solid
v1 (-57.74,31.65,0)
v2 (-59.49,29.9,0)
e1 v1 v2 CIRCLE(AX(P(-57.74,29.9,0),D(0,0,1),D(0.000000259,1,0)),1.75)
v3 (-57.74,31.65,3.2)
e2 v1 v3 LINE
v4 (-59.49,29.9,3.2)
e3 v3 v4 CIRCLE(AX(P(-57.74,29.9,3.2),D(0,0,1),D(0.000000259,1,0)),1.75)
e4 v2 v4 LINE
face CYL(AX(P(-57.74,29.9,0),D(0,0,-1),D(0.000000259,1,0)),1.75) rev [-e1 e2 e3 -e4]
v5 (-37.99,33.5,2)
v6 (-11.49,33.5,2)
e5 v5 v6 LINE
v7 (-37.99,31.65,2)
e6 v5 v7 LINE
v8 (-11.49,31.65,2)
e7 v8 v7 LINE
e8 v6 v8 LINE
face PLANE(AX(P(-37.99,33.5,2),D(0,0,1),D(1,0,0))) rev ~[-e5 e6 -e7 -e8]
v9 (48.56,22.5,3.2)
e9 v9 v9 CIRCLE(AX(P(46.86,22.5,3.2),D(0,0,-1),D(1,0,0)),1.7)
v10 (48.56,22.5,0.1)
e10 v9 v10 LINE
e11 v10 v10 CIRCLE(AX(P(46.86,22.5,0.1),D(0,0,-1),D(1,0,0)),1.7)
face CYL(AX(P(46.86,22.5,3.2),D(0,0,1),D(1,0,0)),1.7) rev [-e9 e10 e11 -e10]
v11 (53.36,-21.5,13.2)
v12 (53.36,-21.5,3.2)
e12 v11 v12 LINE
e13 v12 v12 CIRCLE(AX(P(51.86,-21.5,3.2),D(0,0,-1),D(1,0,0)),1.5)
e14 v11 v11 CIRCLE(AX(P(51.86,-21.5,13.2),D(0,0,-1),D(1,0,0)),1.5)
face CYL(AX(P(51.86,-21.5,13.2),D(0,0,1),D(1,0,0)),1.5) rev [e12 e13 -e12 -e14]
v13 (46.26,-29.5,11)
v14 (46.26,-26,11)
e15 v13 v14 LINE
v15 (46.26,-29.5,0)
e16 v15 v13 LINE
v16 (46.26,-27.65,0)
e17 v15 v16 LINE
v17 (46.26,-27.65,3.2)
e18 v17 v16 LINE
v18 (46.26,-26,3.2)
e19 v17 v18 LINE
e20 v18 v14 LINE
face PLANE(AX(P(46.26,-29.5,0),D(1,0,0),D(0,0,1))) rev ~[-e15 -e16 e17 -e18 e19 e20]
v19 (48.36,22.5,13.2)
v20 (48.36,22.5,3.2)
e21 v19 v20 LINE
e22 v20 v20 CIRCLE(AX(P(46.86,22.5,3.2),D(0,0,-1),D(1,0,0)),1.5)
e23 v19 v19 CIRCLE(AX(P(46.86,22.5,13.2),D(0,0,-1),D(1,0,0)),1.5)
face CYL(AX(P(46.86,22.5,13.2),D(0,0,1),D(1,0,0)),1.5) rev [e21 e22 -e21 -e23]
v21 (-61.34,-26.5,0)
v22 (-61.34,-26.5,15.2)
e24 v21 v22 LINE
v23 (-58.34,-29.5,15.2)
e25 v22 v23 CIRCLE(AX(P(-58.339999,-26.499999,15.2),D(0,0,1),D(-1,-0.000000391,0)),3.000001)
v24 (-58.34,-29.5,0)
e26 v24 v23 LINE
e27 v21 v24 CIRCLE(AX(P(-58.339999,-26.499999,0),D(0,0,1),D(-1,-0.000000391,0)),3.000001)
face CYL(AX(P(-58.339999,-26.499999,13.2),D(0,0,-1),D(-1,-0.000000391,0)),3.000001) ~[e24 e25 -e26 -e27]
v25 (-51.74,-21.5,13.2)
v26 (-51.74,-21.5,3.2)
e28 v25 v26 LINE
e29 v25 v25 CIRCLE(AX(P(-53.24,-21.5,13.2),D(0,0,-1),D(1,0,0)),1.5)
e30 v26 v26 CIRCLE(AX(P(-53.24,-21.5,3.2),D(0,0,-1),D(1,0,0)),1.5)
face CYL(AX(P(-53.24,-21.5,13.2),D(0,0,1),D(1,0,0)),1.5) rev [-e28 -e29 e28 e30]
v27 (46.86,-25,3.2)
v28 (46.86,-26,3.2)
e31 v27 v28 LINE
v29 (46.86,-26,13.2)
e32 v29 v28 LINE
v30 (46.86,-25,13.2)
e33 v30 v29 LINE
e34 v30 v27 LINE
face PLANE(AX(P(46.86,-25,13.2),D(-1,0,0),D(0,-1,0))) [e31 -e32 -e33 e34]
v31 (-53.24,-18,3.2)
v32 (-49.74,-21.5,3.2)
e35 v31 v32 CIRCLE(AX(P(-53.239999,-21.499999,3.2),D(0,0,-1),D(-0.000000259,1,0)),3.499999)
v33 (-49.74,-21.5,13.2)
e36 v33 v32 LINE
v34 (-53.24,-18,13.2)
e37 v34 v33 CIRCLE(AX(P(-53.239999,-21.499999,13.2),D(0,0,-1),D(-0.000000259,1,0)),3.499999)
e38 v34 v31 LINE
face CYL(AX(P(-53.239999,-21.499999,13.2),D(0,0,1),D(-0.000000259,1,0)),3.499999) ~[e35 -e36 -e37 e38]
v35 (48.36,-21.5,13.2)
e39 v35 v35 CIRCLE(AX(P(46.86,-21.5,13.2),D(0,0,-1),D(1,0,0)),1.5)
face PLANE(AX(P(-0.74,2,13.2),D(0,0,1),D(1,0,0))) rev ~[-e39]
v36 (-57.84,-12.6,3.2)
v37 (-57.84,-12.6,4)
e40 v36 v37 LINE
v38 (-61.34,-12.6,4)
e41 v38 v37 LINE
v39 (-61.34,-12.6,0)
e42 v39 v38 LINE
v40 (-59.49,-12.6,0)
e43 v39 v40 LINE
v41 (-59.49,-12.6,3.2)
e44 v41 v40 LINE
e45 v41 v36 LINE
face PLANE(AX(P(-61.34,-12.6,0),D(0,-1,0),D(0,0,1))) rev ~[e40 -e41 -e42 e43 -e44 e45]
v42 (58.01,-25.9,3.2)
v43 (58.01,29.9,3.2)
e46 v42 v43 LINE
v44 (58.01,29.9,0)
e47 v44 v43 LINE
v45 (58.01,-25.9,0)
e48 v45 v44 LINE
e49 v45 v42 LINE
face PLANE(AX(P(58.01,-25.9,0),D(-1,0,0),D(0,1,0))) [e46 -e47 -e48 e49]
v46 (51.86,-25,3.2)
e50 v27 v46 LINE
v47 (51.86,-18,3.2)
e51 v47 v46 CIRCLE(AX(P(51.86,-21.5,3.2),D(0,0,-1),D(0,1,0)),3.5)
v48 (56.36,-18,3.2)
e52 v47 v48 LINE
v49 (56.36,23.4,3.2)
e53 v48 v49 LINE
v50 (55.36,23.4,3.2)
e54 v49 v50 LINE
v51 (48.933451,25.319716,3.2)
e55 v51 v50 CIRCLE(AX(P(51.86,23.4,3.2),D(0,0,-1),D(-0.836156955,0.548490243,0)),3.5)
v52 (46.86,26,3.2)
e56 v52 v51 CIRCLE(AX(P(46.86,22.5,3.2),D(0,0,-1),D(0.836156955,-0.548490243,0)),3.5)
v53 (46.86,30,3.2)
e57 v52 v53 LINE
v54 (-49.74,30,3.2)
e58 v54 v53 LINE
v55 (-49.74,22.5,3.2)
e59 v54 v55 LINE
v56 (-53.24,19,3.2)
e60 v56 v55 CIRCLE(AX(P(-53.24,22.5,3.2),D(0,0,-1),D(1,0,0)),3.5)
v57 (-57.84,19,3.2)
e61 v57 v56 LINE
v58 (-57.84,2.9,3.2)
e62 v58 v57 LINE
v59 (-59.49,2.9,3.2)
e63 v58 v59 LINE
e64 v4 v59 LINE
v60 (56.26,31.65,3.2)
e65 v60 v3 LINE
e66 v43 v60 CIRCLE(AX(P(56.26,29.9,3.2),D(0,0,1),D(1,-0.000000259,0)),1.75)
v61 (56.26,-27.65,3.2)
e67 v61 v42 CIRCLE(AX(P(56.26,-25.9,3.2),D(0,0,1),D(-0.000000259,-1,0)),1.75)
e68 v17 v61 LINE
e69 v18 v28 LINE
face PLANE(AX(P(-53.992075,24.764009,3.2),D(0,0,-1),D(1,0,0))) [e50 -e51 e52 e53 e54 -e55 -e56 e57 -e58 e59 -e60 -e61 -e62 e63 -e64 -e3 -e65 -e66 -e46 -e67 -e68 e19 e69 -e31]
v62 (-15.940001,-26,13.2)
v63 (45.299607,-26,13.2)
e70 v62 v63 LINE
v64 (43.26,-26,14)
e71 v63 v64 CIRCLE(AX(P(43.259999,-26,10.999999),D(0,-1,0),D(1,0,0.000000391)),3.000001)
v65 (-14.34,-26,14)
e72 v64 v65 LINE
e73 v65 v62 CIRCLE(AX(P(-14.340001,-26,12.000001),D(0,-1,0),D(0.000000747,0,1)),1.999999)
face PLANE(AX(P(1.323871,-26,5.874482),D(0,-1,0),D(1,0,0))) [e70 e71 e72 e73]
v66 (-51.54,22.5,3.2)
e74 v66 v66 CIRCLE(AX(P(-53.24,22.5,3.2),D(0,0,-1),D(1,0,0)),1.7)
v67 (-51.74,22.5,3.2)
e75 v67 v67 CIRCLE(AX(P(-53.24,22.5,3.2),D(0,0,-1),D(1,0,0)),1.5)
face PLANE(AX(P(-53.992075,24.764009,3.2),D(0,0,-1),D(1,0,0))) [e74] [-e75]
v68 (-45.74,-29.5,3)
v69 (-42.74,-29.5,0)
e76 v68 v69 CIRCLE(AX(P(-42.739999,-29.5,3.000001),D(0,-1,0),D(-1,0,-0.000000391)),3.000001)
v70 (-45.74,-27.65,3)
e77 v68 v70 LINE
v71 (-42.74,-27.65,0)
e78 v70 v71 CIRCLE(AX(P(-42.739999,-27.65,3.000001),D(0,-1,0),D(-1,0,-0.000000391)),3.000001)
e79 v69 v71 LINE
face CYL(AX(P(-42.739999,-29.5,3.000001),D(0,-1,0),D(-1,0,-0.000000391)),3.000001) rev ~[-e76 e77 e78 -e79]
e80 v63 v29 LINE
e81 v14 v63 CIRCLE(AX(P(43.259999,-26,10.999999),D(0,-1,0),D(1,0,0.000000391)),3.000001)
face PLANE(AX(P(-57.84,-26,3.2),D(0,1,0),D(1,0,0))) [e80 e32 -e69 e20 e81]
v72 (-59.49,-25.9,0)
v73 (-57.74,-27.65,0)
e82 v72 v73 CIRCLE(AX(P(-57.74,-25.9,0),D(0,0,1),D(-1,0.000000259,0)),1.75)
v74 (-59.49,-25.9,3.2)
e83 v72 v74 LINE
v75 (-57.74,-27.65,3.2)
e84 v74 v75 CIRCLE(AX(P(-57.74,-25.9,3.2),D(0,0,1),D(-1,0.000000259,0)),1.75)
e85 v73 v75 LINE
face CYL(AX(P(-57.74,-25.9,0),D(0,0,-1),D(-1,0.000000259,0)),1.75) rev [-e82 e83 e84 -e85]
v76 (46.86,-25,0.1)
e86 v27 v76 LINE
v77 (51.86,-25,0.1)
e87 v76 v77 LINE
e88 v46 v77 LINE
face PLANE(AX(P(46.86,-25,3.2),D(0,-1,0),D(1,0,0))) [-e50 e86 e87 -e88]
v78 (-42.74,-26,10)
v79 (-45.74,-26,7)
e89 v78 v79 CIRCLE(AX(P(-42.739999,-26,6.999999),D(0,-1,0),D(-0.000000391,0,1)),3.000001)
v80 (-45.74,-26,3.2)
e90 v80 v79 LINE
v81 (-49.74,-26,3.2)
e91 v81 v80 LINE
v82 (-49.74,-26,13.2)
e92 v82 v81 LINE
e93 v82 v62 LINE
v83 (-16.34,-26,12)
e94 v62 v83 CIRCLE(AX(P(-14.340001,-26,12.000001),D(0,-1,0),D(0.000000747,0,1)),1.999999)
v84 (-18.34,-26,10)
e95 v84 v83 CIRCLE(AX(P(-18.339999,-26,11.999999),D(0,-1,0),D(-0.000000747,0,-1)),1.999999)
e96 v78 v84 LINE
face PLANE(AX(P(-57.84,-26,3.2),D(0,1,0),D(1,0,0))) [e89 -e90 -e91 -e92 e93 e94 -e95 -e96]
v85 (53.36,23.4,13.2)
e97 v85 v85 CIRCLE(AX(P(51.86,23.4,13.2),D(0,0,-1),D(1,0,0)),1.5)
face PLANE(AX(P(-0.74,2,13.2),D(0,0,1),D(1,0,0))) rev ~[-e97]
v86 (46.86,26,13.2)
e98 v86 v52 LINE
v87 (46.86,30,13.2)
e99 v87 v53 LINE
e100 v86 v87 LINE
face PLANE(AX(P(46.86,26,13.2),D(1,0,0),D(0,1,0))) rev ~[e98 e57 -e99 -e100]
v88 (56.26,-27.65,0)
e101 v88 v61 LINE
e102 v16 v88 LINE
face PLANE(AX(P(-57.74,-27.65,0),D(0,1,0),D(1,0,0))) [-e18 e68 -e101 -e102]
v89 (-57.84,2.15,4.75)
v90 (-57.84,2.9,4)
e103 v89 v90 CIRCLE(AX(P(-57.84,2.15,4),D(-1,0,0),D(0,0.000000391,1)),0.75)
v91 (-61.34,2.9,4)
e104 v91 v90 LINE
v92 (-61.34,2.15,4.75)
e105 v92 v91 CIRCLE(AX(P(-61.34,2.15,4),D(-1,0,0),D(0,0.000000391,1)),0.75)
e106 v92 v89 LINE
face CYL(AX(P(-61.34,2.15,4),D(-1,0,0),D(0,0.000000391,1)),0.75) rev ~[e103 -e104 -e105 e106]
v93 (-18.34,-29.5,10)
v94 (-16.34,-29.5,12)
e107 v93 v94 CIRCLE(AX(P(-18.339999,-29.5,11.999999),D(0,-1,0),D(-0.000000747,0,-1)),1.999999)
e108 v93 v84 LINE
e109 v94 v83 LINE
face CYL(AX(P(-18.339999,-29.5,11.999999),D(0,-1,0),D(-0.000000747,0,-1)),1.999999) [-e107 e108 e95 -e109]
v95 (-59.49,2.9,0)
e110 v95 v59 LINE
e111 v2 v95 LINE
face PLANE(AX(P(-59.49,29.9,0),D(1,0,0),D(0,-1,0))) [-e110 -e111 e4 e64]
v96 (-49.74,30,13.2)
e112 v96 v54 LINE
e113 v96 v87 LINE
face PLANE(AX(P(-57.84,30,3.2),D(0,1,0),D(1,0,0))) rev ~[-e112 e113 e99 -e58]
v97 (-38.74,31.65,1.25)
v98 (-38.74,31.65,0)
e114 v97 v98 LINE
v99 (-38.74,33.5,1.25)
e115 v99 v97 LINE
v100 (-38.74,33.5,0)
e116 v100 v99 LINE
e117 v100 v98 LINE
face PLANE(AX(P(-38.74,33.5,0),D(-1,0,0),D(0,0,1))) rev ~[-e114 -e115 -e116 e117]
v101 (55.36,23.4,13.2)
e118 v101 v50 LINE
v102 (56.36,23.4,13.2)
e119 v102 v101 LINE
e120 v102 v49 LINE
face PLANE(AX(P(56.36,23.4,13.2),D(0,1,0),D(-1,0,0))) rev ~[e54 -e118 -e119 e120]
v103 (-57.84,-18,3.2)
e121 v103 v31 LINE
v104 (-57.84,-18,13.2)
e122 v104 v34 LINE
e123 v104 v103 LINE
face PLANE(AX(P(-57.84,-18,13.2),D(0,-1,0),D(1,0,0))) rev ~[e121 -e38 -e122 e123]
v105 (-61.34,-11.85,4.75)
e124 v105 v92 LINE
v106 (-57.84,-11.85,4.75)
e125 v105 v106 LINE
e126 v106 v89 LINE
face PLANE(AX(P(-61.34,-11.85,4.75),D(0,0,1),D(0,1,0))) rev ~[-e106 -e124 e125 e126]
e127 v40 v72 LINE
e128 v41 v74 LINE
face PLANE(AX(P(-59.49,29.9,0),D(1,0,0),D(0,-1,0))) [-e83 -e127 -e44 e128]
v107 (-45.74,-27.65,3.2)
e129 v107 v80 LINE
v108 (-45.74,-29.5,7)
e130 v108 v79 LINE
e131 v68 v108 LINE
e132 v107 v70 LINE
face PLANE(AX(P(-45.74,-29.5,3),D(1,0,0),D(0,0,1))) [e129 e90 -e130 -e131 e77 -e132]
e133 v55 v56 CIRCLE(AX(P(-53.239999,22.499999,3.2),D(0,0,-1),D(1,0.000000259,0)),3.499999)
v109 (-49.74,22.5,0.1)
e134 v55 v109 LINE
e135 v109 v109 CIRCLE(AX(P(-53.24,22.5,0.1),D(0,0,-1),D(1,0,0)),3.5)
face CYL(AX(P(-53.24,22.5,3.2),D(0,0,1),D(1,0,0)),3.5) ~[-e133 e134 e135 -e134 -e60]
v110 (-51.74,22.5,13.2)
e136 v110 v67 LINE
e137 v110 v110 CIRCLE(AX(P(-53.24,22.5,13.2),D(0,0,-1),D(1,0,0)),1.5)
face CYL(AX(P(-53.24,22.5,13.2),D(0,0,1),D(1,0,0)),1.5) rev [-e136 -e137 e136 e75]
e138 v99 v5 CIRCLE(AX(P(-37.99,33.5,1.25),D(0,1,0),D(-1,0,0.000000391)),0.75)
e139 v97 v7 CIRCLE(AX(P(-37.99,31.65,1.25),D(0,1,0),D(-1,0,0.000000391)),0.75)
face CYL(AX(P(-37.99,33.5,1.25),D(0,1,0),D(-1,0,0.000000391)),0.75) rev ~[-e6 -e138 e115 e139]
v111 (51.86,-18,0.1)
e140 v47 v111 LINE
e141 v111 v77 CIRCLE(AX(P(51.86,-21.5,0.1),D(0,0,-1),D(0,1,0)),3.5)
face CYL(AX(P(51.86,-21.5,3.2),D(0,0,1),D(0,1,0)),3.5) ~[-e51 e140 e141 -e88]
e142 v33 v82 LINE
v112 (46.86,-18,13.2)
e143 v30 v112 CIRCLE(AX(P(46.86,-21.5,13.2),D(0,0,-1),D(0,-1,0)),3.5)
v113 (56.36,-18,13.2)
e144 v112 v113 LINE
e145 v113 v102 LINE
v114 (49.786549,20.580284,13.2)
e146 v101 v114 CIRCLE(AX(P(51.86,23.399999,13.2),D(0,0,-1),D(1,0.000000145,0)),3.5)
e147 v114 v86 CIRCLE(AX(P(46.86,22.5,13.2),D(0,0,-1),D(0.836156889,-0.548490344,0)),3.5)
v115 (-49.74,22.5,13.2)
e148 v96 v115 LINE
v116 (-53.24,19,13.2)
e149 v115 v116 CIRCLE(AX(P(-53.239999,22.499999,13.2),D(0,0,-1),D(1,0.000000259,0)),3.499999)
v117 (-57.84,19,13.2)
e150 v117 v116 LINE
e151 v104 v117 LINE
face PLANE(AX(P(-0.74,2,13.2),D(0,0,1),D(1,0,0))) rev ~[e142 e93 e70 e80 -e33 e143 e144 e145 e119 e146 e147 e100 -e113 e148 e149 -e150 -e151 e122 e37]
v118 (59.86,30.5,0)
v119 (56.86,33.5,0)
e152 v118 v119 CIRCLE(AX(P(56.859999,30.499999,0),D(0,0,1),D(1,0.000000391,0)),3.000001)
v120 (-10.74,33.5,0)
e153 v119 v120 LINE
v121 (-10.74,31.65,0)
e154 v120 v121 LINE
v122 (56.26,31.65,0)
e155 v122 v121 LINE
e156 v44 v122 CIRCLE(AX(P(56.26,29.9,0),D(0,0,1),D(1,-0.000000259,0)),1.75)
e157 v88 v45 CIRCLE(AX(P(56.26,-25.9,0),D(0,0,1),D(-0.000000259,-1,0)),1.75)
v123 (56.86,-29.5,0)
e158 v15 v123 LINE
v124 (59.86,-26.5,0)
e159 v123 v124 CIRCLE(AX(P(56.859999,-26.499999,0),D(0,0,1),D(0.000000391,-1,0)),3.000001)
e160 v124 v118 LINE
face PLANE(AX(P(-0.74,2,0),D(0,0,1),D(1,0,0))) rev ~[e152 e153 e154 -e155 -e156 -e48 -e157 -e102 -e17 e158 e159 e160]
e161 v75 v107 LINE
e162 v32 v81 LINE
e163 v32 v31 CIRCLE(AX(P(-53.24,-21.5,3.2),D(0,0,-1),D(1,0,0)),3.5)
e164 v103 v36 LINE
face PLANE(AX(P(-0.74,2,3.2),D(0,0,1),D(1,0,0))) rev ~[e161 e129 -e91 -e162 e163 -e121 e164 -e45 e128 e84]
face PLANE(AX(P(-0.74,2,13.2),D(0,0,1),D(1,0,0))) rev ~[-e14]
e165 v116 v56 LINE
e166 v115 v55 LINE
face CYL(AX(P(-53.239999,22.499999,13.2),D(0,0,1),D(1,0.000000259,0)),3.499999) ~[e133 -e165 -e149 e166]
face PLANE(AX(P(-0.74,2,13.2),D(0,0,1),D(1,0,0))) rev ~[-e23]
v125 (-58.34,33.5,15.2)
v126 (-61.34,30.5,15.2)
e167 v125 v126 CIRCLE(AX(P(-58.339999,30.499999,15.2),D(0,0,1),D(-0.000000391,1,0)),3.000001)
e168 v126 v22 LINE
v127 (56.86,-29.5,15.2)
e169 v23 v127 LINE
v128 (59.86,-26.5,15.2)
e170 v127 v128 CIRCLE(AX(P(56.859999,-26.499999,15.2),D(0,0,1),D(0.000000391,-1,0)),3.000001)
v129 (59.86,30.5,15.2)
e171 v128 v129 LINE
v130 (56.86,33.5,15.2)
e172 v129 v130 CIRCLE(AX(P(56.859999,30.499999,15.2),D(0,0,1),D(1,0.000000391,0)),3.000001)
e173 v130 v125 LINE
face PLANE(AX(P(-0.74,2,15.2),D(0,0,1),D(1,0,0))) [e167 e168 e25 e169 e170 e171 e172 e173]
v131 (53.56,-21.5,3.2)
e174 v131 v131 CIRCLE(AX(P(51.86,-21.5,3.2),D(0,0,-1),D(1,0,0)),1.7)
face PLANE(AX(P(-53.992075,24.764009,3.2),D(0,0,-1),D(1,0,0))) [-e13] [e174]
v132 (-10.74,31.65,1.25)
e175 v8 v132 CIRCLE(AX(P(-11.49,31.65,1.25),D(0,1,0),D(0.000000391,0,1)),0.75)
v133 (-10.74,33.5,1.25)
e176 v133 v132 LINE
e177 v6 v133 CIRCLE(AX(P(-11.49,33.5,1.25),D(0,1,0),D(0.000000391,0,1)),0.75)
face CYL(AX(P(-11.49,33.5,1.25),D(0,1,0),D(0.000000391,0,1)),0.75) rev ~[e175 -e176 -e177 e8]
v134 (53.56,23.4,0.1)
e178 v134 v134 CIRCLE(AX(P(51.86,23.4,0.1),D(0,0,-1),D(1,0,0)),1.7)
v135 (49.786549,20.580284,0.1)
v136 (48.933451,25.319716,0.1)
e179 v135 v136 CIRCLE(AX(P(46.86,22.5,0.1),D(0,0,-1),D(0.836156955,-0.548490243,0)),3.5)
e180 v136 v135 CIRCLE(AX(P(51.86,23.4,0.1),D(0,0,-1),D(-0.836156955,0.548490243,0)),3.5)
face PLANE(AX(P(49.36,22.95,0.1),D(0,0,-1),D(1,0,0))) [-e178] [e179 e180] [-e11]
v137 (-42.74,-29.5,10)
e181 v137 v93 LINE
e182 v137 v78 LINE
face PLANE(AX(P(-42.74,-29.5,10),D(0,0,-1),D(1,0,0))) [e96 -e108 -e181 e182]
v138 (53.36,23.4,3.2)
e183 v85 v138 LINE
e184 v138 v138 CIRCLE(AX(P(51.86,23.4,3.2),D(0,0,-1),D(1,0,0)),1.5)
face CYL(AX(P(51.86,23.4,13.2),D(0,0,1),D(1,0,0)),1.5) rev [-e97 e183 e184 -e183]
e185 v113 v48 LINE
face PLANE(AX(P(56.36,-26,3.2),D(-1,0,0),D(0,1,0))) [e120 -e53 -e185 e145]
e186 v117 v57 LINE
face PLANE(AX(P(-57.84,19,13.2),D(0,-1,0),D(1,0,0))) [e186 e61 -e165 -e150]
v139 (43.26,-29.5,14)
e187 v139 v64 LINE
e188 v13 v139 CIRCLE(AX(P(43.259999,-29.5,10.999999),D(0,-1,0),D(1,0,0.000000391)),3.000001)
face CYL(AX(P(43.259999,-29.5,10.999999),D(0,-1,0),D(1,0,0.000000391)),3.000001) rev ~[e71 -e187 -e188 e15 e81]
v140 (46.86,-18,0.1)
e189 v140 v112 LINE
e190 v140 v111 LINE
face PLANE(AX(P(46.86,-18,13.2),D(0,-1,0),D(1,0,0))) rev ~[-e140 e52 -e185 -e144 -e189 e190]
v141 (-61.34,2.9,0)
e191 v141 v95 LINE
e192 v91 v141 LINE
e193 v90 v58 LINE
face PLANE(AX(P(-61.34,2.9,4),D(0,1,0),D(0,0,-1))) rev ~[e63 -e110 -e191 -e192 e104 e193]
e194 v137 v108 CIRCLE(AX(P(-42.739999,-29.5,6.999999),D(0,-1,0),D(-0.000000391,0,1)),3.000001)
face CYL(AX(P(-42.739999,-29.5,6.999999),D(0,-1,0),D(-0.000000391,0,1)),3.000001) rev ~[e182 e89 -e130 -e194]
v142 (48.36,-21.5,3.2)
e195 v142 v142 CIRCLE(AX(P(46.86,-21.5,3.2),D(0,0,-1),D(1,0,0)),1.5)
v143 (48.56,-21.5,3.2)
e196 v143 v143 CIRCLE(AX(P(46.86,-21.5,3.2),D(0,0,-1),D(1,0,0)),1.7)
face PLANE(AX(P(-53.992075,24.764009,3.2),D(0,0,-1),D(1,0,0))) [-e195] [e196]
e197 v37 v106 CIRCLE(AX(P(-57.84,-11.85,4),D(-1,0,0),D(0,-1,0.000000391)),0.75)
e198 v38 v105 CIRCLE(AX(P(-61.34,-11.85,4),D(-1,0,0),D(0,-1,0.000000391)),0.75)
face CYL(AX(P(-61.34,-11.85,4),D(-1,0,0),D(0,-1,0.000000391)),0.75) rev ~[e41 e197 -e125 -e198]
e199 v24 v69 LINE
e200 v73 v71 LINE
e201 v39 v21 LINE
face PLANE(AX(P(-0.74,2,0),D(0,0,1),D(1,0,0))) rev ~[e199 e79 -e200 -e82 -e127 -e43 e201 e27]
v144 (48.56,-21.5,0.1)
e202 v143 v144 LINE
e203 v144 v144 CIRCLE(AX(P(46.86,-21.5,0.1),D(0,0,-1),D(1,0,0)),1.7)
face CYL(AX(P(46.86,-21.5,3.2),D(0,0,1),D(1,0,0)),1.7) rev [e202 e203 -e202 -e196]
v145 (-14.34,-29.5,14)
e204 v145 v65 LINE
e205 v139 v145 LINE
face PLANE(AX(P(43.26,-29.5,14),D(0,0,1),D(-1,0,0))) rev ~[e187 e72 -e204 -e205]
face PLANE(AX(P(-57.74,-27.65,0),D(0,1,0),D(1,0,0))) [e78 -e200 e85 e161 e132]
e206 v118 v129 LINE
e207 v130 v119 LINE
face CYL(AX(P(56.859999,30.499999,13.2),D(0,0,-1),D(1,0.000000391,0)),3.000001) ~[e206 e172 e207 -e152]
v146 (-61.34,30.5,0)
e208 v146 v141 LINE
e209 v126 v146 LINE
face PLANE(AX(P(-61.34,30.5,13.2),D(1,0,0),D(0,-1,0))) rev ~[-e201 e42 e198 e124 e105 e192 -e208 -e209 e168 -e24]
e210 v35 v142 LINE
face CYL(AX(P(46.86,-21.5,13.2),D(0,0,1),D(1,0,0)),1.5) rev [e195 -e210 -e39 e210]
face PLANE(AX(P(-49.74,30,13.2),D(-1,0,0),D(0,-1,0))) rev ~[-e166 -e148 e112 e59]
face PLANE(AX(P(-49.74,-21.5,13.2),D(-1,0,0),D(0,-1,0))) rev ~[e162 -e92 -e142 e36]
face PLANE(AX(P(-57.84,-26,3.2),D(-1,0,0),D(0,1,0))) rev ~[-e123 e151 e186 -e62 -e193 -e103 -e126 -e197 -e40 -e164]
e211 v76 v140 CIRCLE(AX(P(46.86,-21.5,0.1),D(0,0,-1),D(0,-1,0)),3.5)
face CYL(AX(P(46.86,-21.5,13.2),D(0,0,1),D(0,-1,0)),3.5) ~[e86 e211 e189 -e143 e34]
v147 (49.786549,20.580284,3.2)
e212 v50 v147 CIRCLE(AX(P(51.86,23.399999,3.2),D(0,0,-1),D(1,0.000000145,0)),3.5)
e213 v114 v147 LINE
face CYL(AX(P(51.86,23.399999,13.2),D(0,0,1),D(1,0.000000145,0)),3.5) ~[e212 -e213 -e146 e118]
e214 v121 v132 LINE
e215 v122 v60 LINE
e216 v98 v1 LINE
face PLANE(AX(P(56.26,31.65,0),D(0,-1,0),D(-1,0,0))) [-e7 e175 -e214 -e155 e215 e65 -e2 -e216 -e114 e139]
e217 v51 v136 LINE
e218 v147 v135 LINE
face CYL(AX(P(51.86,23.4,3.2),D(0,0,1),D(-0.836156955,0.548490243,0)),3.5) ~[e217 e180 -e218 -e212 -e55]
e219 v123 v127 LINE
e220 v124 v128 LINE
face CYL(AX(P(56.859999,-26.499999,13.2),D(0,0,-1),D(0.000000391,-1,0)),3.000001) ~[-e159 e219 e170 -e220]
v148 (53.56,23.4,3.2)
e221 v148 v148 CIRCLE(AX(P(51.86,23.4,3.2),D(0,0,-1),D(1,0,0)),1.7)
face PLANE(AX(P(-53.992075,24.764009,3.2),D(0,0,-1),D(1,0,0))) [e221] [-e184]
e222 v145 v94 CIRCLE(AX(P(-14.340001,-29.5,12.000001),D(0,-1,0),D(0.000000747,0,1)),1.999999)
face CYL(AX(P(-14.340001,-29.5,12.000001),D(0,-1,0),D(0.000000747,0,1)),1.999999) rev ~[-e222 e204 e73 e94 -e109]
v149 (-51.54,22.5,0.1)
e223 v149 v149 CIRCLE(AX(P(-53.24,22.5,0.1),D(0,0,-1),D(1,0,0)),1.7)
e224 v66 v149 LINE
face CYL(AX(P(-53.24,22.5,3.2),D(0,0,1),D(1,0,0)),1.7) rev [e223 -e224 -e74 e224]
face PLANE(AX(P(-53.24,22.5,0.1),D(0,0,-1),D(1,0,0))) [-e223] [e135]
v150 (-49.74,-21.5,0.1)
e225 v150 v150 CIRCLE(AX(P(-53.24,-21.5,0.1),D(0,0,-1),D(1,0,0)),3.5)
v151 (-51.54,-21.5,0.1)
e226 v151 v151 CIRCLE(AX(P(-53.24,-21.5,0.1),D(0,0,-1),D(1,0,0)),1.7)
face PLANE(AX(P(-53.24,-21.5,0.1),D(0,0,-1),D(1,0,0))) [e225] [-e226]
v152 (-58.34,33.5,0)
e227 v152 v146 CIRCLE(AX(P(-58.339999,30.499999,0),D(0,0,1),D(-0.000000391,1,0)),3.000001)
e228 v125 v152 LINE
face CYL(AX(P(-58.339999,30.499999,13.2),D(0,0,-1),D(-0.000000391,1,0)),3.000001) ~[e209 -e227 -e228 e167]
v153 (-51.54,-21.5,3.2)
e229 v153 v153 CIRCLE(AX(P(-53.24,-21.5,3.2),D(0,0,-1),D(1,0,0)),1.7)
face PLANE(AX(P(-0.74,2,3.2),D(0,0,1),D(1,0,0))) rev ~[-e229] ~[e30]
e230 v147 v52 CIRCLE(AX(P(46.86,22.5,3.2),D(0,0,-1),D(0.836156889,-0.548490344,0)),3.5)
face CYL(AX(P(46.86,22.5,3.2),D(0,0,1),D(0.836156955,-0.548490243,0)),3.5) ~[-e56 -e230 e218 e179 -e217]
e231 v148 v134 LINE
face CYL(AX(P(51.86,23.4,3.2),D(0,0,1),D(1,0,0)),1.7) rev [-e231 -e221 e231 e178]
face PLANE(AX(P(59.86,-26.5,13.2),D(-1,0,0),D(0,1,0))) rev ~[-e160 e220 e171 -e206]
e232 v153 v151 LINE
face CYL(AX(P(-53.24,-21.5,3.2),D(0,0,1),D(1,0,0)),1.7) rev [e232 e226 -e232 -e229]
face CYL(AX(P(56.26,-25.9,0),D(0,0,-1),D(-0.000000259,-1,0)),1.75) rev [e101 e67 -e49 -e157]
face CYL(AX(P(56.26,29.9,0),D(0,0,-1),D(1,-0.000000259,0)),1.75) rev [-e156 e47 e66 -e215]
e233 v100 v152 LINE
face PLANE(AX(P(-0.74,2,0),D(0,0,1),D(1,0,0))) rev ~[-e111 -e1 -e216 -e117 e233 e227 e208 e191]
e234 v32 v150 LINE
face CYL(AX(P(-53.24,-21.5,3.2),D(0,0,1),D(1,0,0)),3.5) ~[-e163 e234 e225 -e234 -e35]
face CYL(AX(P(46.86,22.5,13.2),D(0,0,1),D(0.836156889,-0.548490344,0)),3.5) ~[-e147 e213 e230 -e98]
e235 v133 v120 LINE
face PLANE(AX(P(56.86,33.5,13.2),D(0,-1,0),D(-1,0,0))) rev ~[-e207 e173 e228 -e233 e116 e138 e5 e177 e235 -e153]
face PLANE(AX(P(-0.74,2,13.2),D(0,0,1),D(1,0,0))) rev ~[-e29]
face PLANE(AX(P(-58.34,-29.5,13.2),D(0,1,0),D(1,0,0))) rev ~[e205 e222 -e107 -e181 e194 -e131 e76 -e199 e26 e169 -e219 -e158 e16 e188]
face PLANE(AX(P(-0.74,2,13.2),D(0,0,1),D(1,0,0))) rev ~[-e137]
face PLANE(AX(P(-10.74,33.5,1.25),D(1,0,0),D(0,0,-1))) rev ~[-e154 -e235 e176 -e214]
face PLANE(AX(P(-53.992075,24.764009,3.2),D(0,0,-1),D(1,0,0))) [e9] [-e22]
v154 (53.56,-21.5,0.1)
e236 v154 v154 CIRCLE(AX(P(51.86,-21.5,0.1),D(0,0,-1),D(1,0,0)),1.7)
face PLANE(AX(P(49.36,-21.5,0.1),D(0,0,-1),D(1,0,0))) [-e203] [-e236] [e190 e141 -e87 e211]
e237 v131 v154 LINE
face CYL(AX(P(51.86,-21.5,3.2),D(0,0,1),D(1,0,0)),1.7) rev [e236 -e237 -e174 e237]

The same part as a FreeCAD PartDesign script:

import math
import FreeCAD as App
import Part
import Sketcher

doc = App.newDocument("Part")
body = doc.addObject("PartDesign::Body", "Body")

# Sketch on XY plane
sketch1 = body.newObject("Sketcher::SketchObject", "Sketch")
sketch1.AttachmentSupport = (doc.getObject("XY_Plane"), [""])
sketch1.MapMode = "FlatFace"
sketch1.addGeometry([
    Part.LineSegment(App.Vector(56.9, 33.5, 0), App.Vector(-58.3, 33.5, 0)),  # 0
    Part.ArcOfCircle(Part.Circle(App.Vector(-58.3, 30.5, 0), App.Vector(0, 0, 1), 3), math.radians(90), math.radians(180)),  # 1
    Part.LineSegment(App.Vector(-61.3, 30.5, 0), App.Vector(-61.3, -26.5, 0)),  # 2
    Part.ArcOfCircle(Part.Circle(App.Vector(-58.3, -26.5, 0), App.Vector(0, 0, 1), 3), math.radians(-180), math.radians(-90)),  # 3
    Part.LineSegment(App.Vector(-58.3, -29.5, 0), App.Vector(56.9, -29.5, 0)),  # 4
    Part.ArcOfCircle(Part.Circle(App.Vector(56.9, -26.5, 0), App.Vector(0, 0, 1), 3), math.radians(-90), math.radians(0)),  # 5
    Part.LineSegment(App.Vector(59.9, -26.5, 0), App.Vector(59.9, 30.5, 0)),  # 6
    Part.ArcOfCircle(Part.Circle(App.Vector(56.9, 30.5, 0), App.Vector(0, 0, 1), 3), math.radians(0), math.radians(90)),  # 7
    Part.LineSegment(App.Vector(-57.7, 31.6, 0), App.Vector(56.3, 31.6, 0)),  # 8
    Part.ArcOfCircle(Part.Circle(App.Vector(56.3, 29.9, 0), App.Vector(0, 0, 1), 1.7), math.radians(0), math.radians(90)),  # 9
    Part.LineSegment(App.Vector(58, 29.9, 0), App.Vector(58, -25.9, 0)),  # 10
    Part.ArcOfCircle(Part.Circle(App.Vector(56.3, -25.9, 0), App.Vector(0, 0, 1), 1.7), math.radians(-90), math.radians(0)),  # 11
    Part.LineSegment(App.Vector(56.3, -27.6, 0), App.Vector(-57.7, -27.6, 0)),  # 12
    Part.ArcOfCircle(Part.Circle(App.Vector(-57.7, -25.9, 0), App.Vector(0, 0, 1), 1.7), math.radians(180), math.radians(270)),  # 13
    Part.LineSegment(App.Vector(-59.5, -25.9, 0), App.Vector(-59.5, 29.9, 0)),  # 14
    Part.ArcOfCircle(Part.Circle(App.Vector(-57.7, 29.9, 0), App.Vector(0, 0, 1), 1.7), math.radians(90), math.radians(180)),  # 15
], False)
sketch1.addConstraint([
    Sketcher.Constraint("Tangent", 0, 2, 1, 1),
    Sketcher.Constraint("Tangent", 1, 2, 2, 1),
    Sketcher.Constraint("Tangent", 2, 2, 3, 1),
    Sketcher.Constraint("Tangent", 3, 2, 4, 1),
    Sketcher.Constraint("Tangent", 4, 2, 5, 1),
    Sketcher.Constraint("Tangent", 5, 2, 6, 1),
    Sketcher.Constraint("Tangent", 6, 2, 7, 1),
    Sketcher.Constraint("Tangent", 7, 2, 0, 1),
    Sketcher.Constraint("Tangent", 8, 2, 9, 2),
    Sketcher.Constraint("Tangent", 9, 1, 10, 1),
    Sketcher.Constraint("Tangent", 10, 2, 11, 2),
    Sketcher.Constraint("Tangent", 11, 1, 12, 1),
    Sketcher.Constraint("Tangent", 12, 2, 13, 2),
    Sketcher.Constraint("Tangent", 13, 1, 14, 1),
    Sketcher.Constraint("Tangent", 14, 2, 15, 2),
    Sketcher.Constraint("Tangent", 15, 1, 8, 1),
    Sketcher.Constraint("Horizontal", 0),
    Sketcher.Constraint("Vertical", 2),
    Sketcher.Constraint("Horizontal", 4),
    Sketcher.Constraint("Vertical", 6),
    Sketcher.Constraint("Horizontal", 8),
    Sketcher.Constraint("Vertical", 10),
    Sketcher.Constraint("Horizontal", 12),
    Sketcher.Constraint("Vertical", 14),
    Sketcher.Constraint("Equal", 1, 3),
    Sketcher.Constraint("Equal", 3, 5),
    Sketcher.Constraint("Equal", 5, 7),
    Sketcher.Constraint("Equal", 9, 11),
    Sketcher.Constraint("Equal", 11, 13),
    Sketcher.Constraint("Equal", 13, 15),
    Sketcher.Constraint("Radius", 1, 3.000001),
    Sketcher.Constraint("DistanceX", 8, 1, 8, 2, 114.0),
    Sketcher.Constraint("DistanceY", 2, 2, 2, 1, 57.0),
    Sketcher.Constraint("Radius", 9, 1.75),
    Sketcher.Constraint("DistanceX", 0, 2, 0, 1, 115.2),
    Sketcher.Constraint("DistanceY", 10, 2, 10, 1, 55.8),
    Sketcher.Constraint("DistanceY", -1, 1, 1, 3, 30.499999),
    Sketcher.Constraint("DistanceY", -1, 1, 9, 3, 29.9),
    Sketcher.Constraint("DistanceX", 9, 3, 7, 3, 0.599998),
    Sketcher.Constraint("DistanceX", 1, 3, -1, 1, 58.339999),
])
pad1 = body.newObject("PartDesign::Pad", "Pad")
pad1.Profile = sketch1
pad1.Length = 3.2

# Sketch on XY plane
sketch2 = body.newObject("Sketcher::SketchObject", "Sketch001")
sketch2.AttachmentSupport = (doc.getObject("XY_Plane"), [""])
sketch2.MapMode = "FlatFace"
sketch2.AttachmentOffset = App.Placement(App.Vector(0, 0, 3.2), App.Rotation())
sketch2.addGeometry([
    Part.LineSegment(App.Vector(-61.3, 30.5, 0), App.Vector(-61.3, -26.5, 0)),  # 0
    Part.ArcOfCircle(Part.Circle(App.Vector(-58.3, -26.5, 0), App.Vector(0, 0, 1), 3), math.radians(-180), math.radians(-90)),  # 1
    Part.LineSegment(App.Vector(-58.3, -29.5, 0), App.Vector(56.9, -29.5, 0)),  # 2
    Part.ArcOfCircle(Part.Circle(App.Vector(56.9, -26.5, 0), App.Vector(0, 0, 1), 3), math.radians(-90), math.radians(0)),  # 3
    Part.LineSegment(App.Vector(59.9, -26.5, 0), App.Vector(59.9, 30.5, 0)),  # 4
    Part.ArcOfCircle(Part.Circle(App.Vector(56.9, 30.5, 0), App.Vector(0, 0, 1), 3), math.radians(0), math.radians(90)),  # 5
    Part.LineSegment(App.Vector(56.9, 33.5, 0), App.Vector(-58.3, 33.5, 0)),  # 6
    Part.ArcOfCircle(Part.Circle(App.Vector(-58.3, 30.5, 0), App.Vector(0, 0, 1), 3), math.radians(90), math.radians(180)),  # 7
    Part.LineSegment(App.Vector(56.4, -26, 0), App.Vector(-57.8, -26, 0)),  # 8
    Part.LineSegment(App.Vector(-57.8, -26, 0), App.Vector(-57.8, 30, 0)),  # 9
    Part.LineSegment(App.Vector(-57.8, 30, 0), App.Vector(56.4, 30, 0)),  # 10
    Part.LineSegment(App.Vector(56.4, 30, 0), App.Vector(56.4, -26, 0)),  # 11
], False)
sketch2.addConstraint([
    Sketcher.Constraint("Tangent", 0, 2, 1, 1),
    Sketcher.Constraint("Tangent", 1, 2, 2, 1),
    Sketcher.Constraint("Tangent", 2, 2, 3, 1),
    Sketcher.Constraint("Tangent", 3, 2, 4, 1),
    Sketcher.Constraint("Tangent", 4, 2, 5, 1),
    Sketcher.Constraint("Tangent", 5, 2, 6, 1),
    Sketcher.Constraint("Tangent", 6, 2, 7, 1),
    Sketcher.Constraint("Tangent", 7, 2, 0, 1),
    Sketcher.Constraint("Coincident", 8, 2, 9, 1),
    Sketcher.Constraint("Coincident", 9, 2, 10, 1),
    Sketcher.Constraint("Coincident", 10, 2, 11, 1),
    Sketcher.Constraint("Coincident", 11, 2, 8, 1),
    Sketcher.Constraint("Vertical", 0),
    Sketcher.Constraint("Horizontal", 2),
    Sketcher.Constraint("Vertical", 4),
    Sketcher.Constraint("Horizontal", 6),
    Sketcher.Constraint("Horizontal", 8),
    Sketcher.Constraint("Vertical", 9),
    Sketcher.Constraint("Horizontal", 10),
    Sketcher.Constraint("Vertical", 11),
    Sketcher.Constraint("Equal", 1, 3),
    Sketcher.Constraint("Equal", 3, 5),
    Sketcher.Constraint("Equal", 5, 7),
    Sketcher.Constraint("Radius", 1, 3.000001),
    Sketcher.Constraint("DistanceY", 0, 2, 0, 1, 57.0),
    Sketcher.Constraint("DistanceY", 9, 1, 9, 2, 56.0),
    Sketcher.Constraint("DistanceX", 2, 1, 2, 2, 115.2),
    Sketcher.Constraint("DistanceX", 8, 2, 8, 1, 114.2),
    Sketcher.Constraint("DistanceY", 8, 2, -1, 1, 26.0),
    Sketcher.Constraint("DistanceY", 1, 3, -1, 1, 26.499999),
    Sketcher.Constraint("DistanceX", 1, 3, 8, 2, 0.499999),
    Sketcher.Constraint("DistanceX", 1, 3, -1, 1, 58.339999),
])
pad2 = body.newObject("PartDesign::Pad", "Pad001")
pad2.Profile = sketch2
pad2.Length = 10

# Sketch on XY plane
sketch3 = body.newObject("Sketcher::SketchObject", "Sketch002")
sketch3.AttachmentSupport = (doc.getObject("XY_Plane"), [""])
sketch3.MapMode = "FlatFace"
sketch3.AttachmentOffset = App.Placement(App.Vector(0, 0, 13.2), App.Rotation())
sketch3.addGeometry([
    Part.LineSegment(App.Vector(-61.3, 30.5, 0), App.Vector(-61.3, -26.5, 0)),  # 0
    Part.ArcOfCircle(Part.Circle(App.Vector(-58.3, -26.5, 0), App.Vector(0, 0, 1), 3), math.radians(-180), math.radians(-90)),  # 1
    Part.LineSegment(App.Vector(-58.3, -29.5, 0), App.Vector(56.9, -29.5, 0)),  # 2
    Part.ArcOfCircle(Part.Circle(App.Vector(56.9, -26.5, 0), App.Vector(0, 0, 1), 3), math.radians(-90), math.radians(0)),  # 3
    Part.LineSegment(App.Vector(59.9, -26.5, 0), App.Vector(59.9, 30.5, 0)),  # 4
    Part.ArcOfCircle(Part.Circle(App.Vector(56.9, 30.5, 0), App.Vector(0, 0, 1), 3), math.radians(0), math.radians(90)),  # 5
    Part.LineSegment(App.Vector(56.9, 33.5, 0), App.Vector(-58.3, 33.5, 0)),  # 6
    Part.ArcOfCircle(Part.Circle(App.Vector(-58.3, 30.5, 0), App.Vector(0, 0, 1), 3), math.radians(90), math.radians(180)),  # 7
], False)
sketch3.addConstraint([
    Sketcher.Constraint("Tangent", 0, 2, 1, 1),
    Sketcher.Constraint("Tangent", 1, 2, 2, 1),
    Sketcher.Constraint("Tangent", 2, 2, 3, 1),
    Sketcher.Constraint("Tangent", 3, 2, 4, 1),
    Sketcher.Constraint("Tangent", 4, 2, 5, 1),
    Sketcher.Constraint("Tangent", 5, 2, 6, 1),
    Sketcher.Constraint("Tangent", 6, 2, 7, 1),
    Sketcher.Constraint("Tangent", 7, 2, 0, 1),
    Sketcher.Constraint("Vertical", 0),
    Sketcher.Constraint("Horizontal", 2),
    Sketcher.Constraint("Vertical", 4),
    Sketcher.Constraint("Horizontal", 6),
    Sketcher.Constraint("Equal", 1, 3),
    Sketcher.Constraint("Equal", 3, 5),
    Sketcher.Constraint("Equal", 5, 7),
    Sketcher.Constraint("Radius", 1, 3.000001),
    Sketcher.Constraint("DistanceY", 0, 2, 0, 1, 57.0),
    Sketcher.Constraint("DistanceX", 2, 1, 2, 2, 115.2),
    Sketcher.Constraint("DistanceY", 1, 3, -1, 1, 26.499999),
    Sketcher.Constraint("DistanceX", 1, 3, -1, 1, 58.339999),
])
pad3 = body.newObject("PartDesign::Pad", "Pad002")
pad3.Profile = sketch3
pad3.Length = 2

# Sketch on YZ plane
sketch4 = body.newObject("Sketcher::SketchObject", "Sketch003")
sketch4.AttachmentSupport = (doc.getObject("YZ_Plane"), [""])
sketch4.MapMode = "FlatFace"
sketch4.AttachmentOffset = App.Placement(App.Vector(0, 0, -61.34), App.Rotation())
sketch4.addGeometry([
    Part.LineSegment(App.Vector(2.9, 0, 0), App.Vector(-12.6, 0, 0)),  # 0
    Part.LineSegment(App.Vector(-12.6, 0, 0), App.Vector(-12.6, 4, 0)),  # 1
    Part.ArcOfCircle(Part.Circle(App.Vector(-11.8, 4, 0), App.Vector(0, 0, 1), 0.8), math.radians(90), math.radians(180)),  # 2
    Part.LineSegment(App.Vector(-11.8, 4.8, 0), App.Vector(2.1, 4.8, 0)),  # 3
    Part.ArcOfCircle(Part.Circle(App.Vector(2.1, 4, 0), App.Vector(0, 0, 1), 0.8), math.radians(0), math.radians(90)),  # 4
    Part.LineSegment(App.Vector(2.9, 4, 0), App.Vector(2.9, 0, 0)),  # 5
], False)
sketch4.addConstraint([
    Sketcher.Constraint("Coincident", 0, 2, 1, 1),
    Sketcher.Constraint("Tangent", 1, 2, 2, 2),
    Sketcher.Constraint("Tangent", 2, 1, 3, 1),
    Sketcher.Constraint("Tangent", 3, 2, 4, 2),
    Sketcher.Constraint("Tangent", 4, 1, 5, 1),
    Sketcher.Constraint("Coincident", 5, 2, 0, 1),
    Sketcher.Constraint("Horizontal", 0),
    Sketcher.Constraint("Vertical", 1),
    Sketcher.Constraint("Horizontal", 3),
    Sketcher.Constraint("Vertical", 5),
    Sketcher.Constraint("Equal", 2, 4),
    Sketcher.Constraint("PointOnObject", 0, 2, -1),
    Sketcher.Constraint("DistanceX", 3, 1, 3, 2, 14.0),
    Sketcher.Constraint("DistanceY", 1, 1, 1, 2, 4.0),
    Sketcher.Constraint("Radius", 2, 0.75),
    Sketcher.Constraint("DistanceX", 0, 2, -1, 1, 12.6),
])
pocket1 = body.newObject("PartDesign::Pocket", "Pocket")
pocket1.Profile = sketch4
pocket1.Length = 5
pocket1.Reversed = True

# Sketch on XZ plane
sketch5 = body.newObject("Sketcher::SketchObject", "Sketch004")
sketch5.AttachmentSupport = (doc.getObject("XZ_Plane"), [""])
sketch5.MapMode = "FlatFace"
sketch5.AttachmentOffset = App.Placement(App.Vector(0, 0, -33.5), App.Rotation())
sketch5.addGeometry([
    Part.LineSegment(App.Vector(-10.7, 0, 0), App.Vector(-38.7, 0, 0)),  # 0
    Part.LineSegment(App.Vector(-38.7, 0, 0), App.Vector(-38.7, 1.2, 0)),  # 1
    Part.ArcOfCircle(Part.Circle(App.Vector(-38, 1.2, 0), App.Vector(0, 0, 1), 0.8), math.radians(90), math.radians(180)),  # 2
    Part.LineSegment(App.Vector(-38, 2, 0), App.Vector(-11.5, 2, 0)),  # 3
    Part.ArcOfCircle(Part.Circle(App.Vector(-11.5, 1.2, 0), App.Vector(0, 0, 1), 0.8), math.radians(0), math.radians(90)),  # 4
    Part.LineSegment(App.Vector(-10.7, 1.2, 0), App.Vector(-10.7, 0, 0)),  # 5
], False)
sketch5.addConstraint([
    Sketcher.Constraint("Coincident", 0, 2, 1, 1),
    Sketcher.Constraint("Tangent", 1, 2, 2, 2),
    Sketcher.Constraint("Tangent", 2, 1, 3, 1),
    Sketcher.Constraint("Tangent", 3, 2, 4, 2),
    Sketcher.Constraint("Tangent", 4, 1, 5, 1),
    Sketcher.Constraint("Coincident", 5, 2, 0, 1),
    Sketcher.Constraint("Horizontal", 0),
    Sketcher.Constraint("Vertical", 1),
    Sketcher.Constraint("Horizontal", 3),
    Sketcher.Constraint("Vertical", 5),
    Sketcher.Constraint("Equal", 2, 4),
    Sketcher.Constraint("PointOnObject", 0, 2, -1),
    Sketcher.Constraint("DistanceX", 0, 2, 0, 1, 28.0),
    Sketcher.Constraint("Radius", 2, 0.75),
    Sketcher.Constraint("DistanceY", -1, 1, 2, 1, 2.0),
    Sketcher.Constraint("DistanceX", 2, 3, -1, 1, 37.99),
])
pocket2 = body.newObject("PartDesign::Pocket", "Pocket001")
pocket2.Profile = sketch5
pocket2.Length = 5
pocket2.Reversed = True

# Sketch on XZ plane
sketch6 = body.newObject("Sketcher::SketchObject", "Sketch005")
sketch6.AttachmentSupport = (doc.getObject("XZ_Plane"), [""])
sketch6.MapMode = "FlatFace"
sketch6.AttachmentOffset = App.Placement(App.Vector(0, 0, 29.5), App.Rotation())
sketch6.addGeometry([
    Part.ArcOfCircle(Part.Circle(App.Vector(-42.7, 3, 0), App.Vector(0, 0, 1), 3), math.radians(-180), math.radians(-90)),  # 0
    Part.LineSegment(App.Vector(-42.7, 0, 0), App.Vector(-16.3, 0, 0)),  # 1
    Part.ArcOfCircle(Part.Circle(App.Vector(-14.3, 0, 0), App.Vector(0, 0, 1), 2), math.radians(180), math.radians(270)),  # 2
    Part.LineSegment(App.Vector(-14.3, -2, 0), App.Vector(25.7, -2, 0)),  # 3
    Part.ArcOfCircle(Part.Circle(App.Vector(25.7, 0, 0), App.Vector(0, 0, 1), 2), math.radians(-90), math.radians(0)),  # 4
    Part.LineSegment(App.Vector(27.7, 0, 0), App.Vector(46.3, 0, 0)),  # 5
    Part.LineSegment(App.Vector(46.3, 0, 0), App.Vector(46.3, 11, 0)),  # 6
    Part.ArcOfCircle(Part.Circle(App.Vector(43.3, 11, 0), App.Vector(0, 0, 1), 3), math.radians(0), math.radians(90)),  # 7
    Part.LineSegment(App.Vector(43.3, 14, 0), App.Vector(-14.3, 14, 0)),  # 8
    Part.ArcOfCircle(Part.Circle(App.Vector(-14.3, 12, 0), App.Vector(0, 0, 1), 2), math.radians(90), math.radians(180)),  # 9
    Part.ArcOfCircle(Part.Circle(App.Vector(-18.3, 12, 0), App.Vector(0, 0, 1), 2), math.radians(-90), math.radians(0)),  # 10
    Part.LineSegment(App.Vector(-18.3, 10, 0), App.Vector(-42.7, 10, 0)),  # 11
    Part.ArcOfCircle(Part.Circle(App.Vector(-42.7, 7, 0), App.Vector(0, 0, 1), 3), math.radians(90), math.radians(180)),  # 12
    Part.LineSegment(App.Vector(-45.7, 7, 0), App.Vector(-45.7, 3, 0)),  # 13
], False)
sketch6.addConstraint([
    Sketcher.Constraint("Tangent", 0, 2, 1, 1),
    Sketcher.Constraint("Coincident", 1, 2, 2, 1),
    Sketcher.Constraint("Tangent", 2, 2, 3, 1),
    Sketcher.Constraint("Tangent", 3, 2, 4, 1),
    Sketcher.Constraint("Coincident", 4, 2, 5, 1),
    Sketcher.Constraint("Coincident", 5, 2, 6, 1),
    Sketcher.Constraint("Tangent", 6, 2, 7, 1),
    Sketcher.Constraint("Tangent", 7, 2, 8, 1),
    Sketcher.Constraint("Tangent", 8, 2, 9, 1),
    Sketcher.Constraint("Tangent", 9, 2, 10, 2),
    Sketcher.Constraint("Tangent", 10, 1, 11, 1),
    Sketcher.Constraint("Tangent", 11, 2, 12, 1),
    Sketcher.Constraint("Tangent", 12, 2, 13, 1),
    Sketcher.Constraint("Tangent", 13, 2, 0, 1),
    Sketcher.Constraint("Horizontal", 1),
    Sketcher.Constraint("Horizontal", 3),
    Sketcher.Constraint("Horizontal", 5),
    Sketcher.Constraint("Vertical", 6),
    Sketcher.Constraint("Horizontal", 8),
    Sketcher.Constraint("Horizontal", 11),
    Sketcher.Constraint("Vertical", 13),
    Sketcher.Constraint("Equal", 2, 4),
    Sketcher.Constraint("Equal", 0, 7),
    Sketcher.Constraint("Equal", 4, 9),
    Sketcher.Constraint("Equal", 9, 10),
    Sketcher.Constraint("Equal", 7, 12),
    Sketcher.Constraint("PointOnObject", 2, 3, -1),
    Sketcher.Constraint("PointOnObject", 0, 2, -1),
    Sketcher.Constraint("PointOnObject", 4, 2, -1),
    Sketcher.Constraint("Horizontal", 10, 3, 9, 2),
    Sketcher.Constraint("Vertical", 2, 3, 9, 3),
    Sketcher.Constraint("Radius", 0, 3.000001),
    Sketcher.Constraint("Radius", 2, 1.999999),
    Sketcher.Constraint("DistanceX", 3, 1, 3, 2, 40.0),
    Sketcher.Constraint("DistanceY", 6, 1, 6, 2, 11.0),
    Sketcher.Constraint("DistanceX", 1, 1, 1, 2, 26.4),
    Sketcher.Constraint("DistanceX", 5, 1, 5, 2, 18.6),
    Sketcher.Constraint("DistanceX", 0, 3, -1, 1, 42.739999),
])
pocket3 = body.newObject("PartDesign::Pocket", "Pocket002")
pocket3.Profile = sketch6
pocket3.Length = 3.5

# Sketch on XY plane
sketch7 = body.newObject("Sketcher::SketchObject", "Sketch006")
sketch7.AttachmentSupport = (doc.getObject("XY_Plane"), [""])
sketch7.MapMode = "FlatFace"
sketch7.AttachmentOffset = App.Placement(App.Vector(0, 0, 13.2), App.Rotation())
sketch7.addGeometry([
    Part.ArcOfCircle(Part.Circle(App.Vector(-53.2, 22.5, 0), App.Vector(0, 0, 1), 3.5), math.radians(-90), math.radians(0)),  # 0
    Part.LineSegment(App.Vector(-53.2, 19, 0), App.Vector(-57.8, 19, 0)),  # 1
    Part.LineSegment(App.Vector(-57.8, 19, 0), App.Vector(-57.8, 30, 0)),  # 2
    Part.LineSegment(App.Vector(-57.8, 30, 0), App.Vector(-49.7, 30, 0)),  # 3
    Part.LineSegment(App.Vector(-49.7, 30, 0), App.Vector(-49.7, 22.5, 0)),  # 4
    Part.Circle(App.Vector(-53.2, 22.5, 0), App.Vector(0, 0, 1), 1.5),  # 5
    Part.LineSegment(App.Vector(-57.8, -26, 0), App.Vector(-57.8, -18, 0)),  # 6
    Part.LineSegment(App.Vector(-57.8, -18, 0), App.Vector(-53.2, -18, 0)),  # 7
    Part.ArcOfCircle(Part.Circle(App.Vector(-53.2, -21.5, 0), App.Vector(0, 0, 1), 3.5), math.radians(0), math.radians(90)),  # 8
    Part.LineSegment(App.Vector(-49.7, -21.5, 0), App.Vector(-49.7, -26, 0)),  # 9
    Part.LineSegment(App.Vector(-49.7, -26, 0), App.Vector(-57.8, -26, 0)),  # 10
    Part.Circle(App.Vector(-53.2, -21.5, 0), App.Vector(0, 0, 1), 1.5),  # 11
    Part.LineSegment(App.Vector(56.4, -26, 0), App.Vector(46.9, -26, 0)),  # 12
    Part.LineSegment(App.Vector(46.9, -26, 0), App.Vector(46.9, -25, 0)),  # 13
    Part.ArcOfCircle(Part.Circle(App.Vector(46.9, -21.5, 0), App.Vector(0, 0, 1), 3.5), math.radians(90), math.radians(270)),  # 14
    Part.LineSegment(App.Vector(46.9, -18, 0), App.Vector(56.4, -18, 0)),  # 15
    Part.LineSegment(App.Vector(56.4, -18, 0), App.Vector(56.4, -26, 0)),  # 16
    Part.Circle(App.Vector(46.9, -21.5, 0), App.Vector(0, 0, 1), 1.5),  # 17
    Part.Circle(App.Vector(51.9, -21.5, 0), App.Vector(0, 0, 1), 1.5),  # 18
    Part.LineSegment(App.Vector(56.4, 30, 0), App.Vector(56.4, 23.4, 0)),  # 19
    Part.LineSegment(App.Vector(56.4, 23.4, 0), App.Vector(55.4, 23.4, 0)),  # 20
    Part.ArcOfCircle(Part.Circle(App.Vector(51.9, 23.4, 0), App.Vector(0, 0, 1), 3.5), math.radians(-126), math.radians(0)),  # 21
    Part.ArcOfCircle(Part.Circle(App.Vector(46.9, 22.5, 0), App.Vector(0, 0, 1), 3.5), math.radians(90), math.radians(327)),  # 22
    Part.LineSegment(App.Vector(46.9, 26, 0), App.Vector(46.9, 30, 0)),  # 23
    Part.LineSegment(App.Vector(46.9, 30, 0), App.Vector(56.4, 30, 0)),  # 24
    Part.Circle(App.Vector(51.9, 23.4, 0), App.Vector(0, 0, 1), 1.5),  # 25
    Part.Circle(App.Vector(46.9, 22.5, 0), App.Vector(0, 0, 1), 1.5),  # 26
], False)
sketch7.addConstraint([
    Sketcher.Constraint("Tangent", 0, 1, 1, 1),
    Sketcher.Constraint("Coincident", 1, 2, 2, 1),
    Sketcher.Constraint("Coincident", 2, 2, 3, 1),
    Sketcher.Constraint("Coincident", 3, 2, 4, 1),
    Sketcher.Constraint("Tangent", 4, 2, 0, 2),
    Sketcher.Constraint("Coincident", 6, 2, 7, 1),
    Sketcher.Constraint("Tangent", 7, 2, 8, 2),
    Sketcher.Constraint("Tangent", 8, 1, 9, 1),
    Sketcher.Constraint("Coincident", 9, 2, 10, 1),
    Sketcher.Constraint("Coincident", 10, 2, 6, 1),
    Sketcher.Constraint("Coincident", 12, 2, 13, 1),
    Sketcher.Constraint("Coincident", 13, 2, 14, 2),
    Sketcher.Constraint("Tangent", 14, 1, 15, 1),
    Sketcher.Constraint("Coincident", 15, 2, 16, 1),
    Sketcher.Constraint("Coincident", 16, 2, 12, 1),
    Sketcher.Constraint("Coincident", 19, 2, 20, 1),
    Sketcher.Constraint("Coincident", 20, 2, 21, 2),
    Sketcher.Constraint("Coincident", 21, 1, 22, 2),
    Sketcher.Constraint("Coincident", 22, 1, 23, 1),
    Sketcher.Constraint("Coincident", 23, 2, 24, 1),
    Sketcher.Constraint("Coincident", 24, 2, 19, 1),
    Sketcher.Constraint("Horizontal", 1),
    Sketcher.Constraint("Vertical", 2),
    Sketcher.Constraint("Horizontal", 3),
    Sketcher.Constraint("Vertical", 4),
    Sketcher.Constraint("Vertical", 6),
    Sketcher.Constraint("Horizontal", 7),
    Sketcher.Constraint("Vertical", 9),
    Sketcher.Constraint("Horizontal", 10),
    Sketcher.Constraint("Horizontal", 12),
    Sketcher.Constraint("Vertical", 13),
    Sketcher.Constraint("Horizontal", 15),
    Sketcher.Constraint("Vertical", 16),
    Sketcher.Constraint("Vertical", 19),
    Sketcher.Constraint("Horizontal", 20),
    Sketcher.Constraint("Vertical", 23),
    Sketcher.Constraint("Horizontal", 24),
    Sketcher.Constraint("Coincident", 5, 3, 0, 3),
    Sketcher.Constraint("Coincident", 11, 3, 8, 3),
    Sketcher.Constraint("Coincident", 17, 3, 14, 3),
    Sketcher.Constraint("Coincident", 25, 3, 21, 3),
    Sketcher.Constraint("Coincident", 26, 3, 22, 3),
    Sketcher.Constraint("Equal", 0, 8),
    Sketcher.Constraint("Equal", 5, 11),
    Sketcher.Constraint("Equal", 8, 14),
    Sketcher.Constraint("Equal", 11, 17),
    Sketcher.Constraint("Equal", 17, 18),
    Sketcher.Constraint("Equal", 14, 21),
    Sketcher.Constraint("Equal", 21, 22),
    Sketcher.Constraint("Equal", 18, 25),
    Sketcher.Constraint("Equal", 25, 26),
    Sketcher.Constraint("Symmetric", 12, 2, 22, 1, -1),
    Sketcher.Constraint("Horizontal", 11, 3, 14, 3),
    Sketcher.Constraint("Horizontal", 17, 3, 18, 3),
    Sketcher.Constraint("Horizontal", 5, 3, 22, 3),
    Sketcher.Constraint("Horizontal", 10, 2, 12, 2),
    Sketcher.Constraint("Horizontal", 25, 3, 19, 2),
    Sketcher.Constraint("Horizontal", 3, 2, 23, 2),
    Sketcher.Constraint("Vertical", 5, 3, 8, 3),
    Sketcher.Constraint("Vertical", 18, 3, 21, 3),
    Sketcher.Constraint("Vertical", 17, 3, 22, 3),
    Sketcher.Constraint("Vertical", 2, 2, 6, 2),
    Sketcher.Constraint("Vertical", 26, 3, 12, 2),
    Sketcher.Constraint("Vertical", 16, 2, 19, 2),
    Sketcher.Constraint("Equal", 20, 13),
    Sketcher.Constraint("Diameter", 5, 3.0),
    Sketcher.Constraint("Radius", 0, 3.499999),
    Sketcher.Constraint("DistanceX", 20, 2, 20, 1, 1.0),
    Sketcher.Constraint("DistanceY", 2, 1, 2, 2, 11.0),
    Sketcher.Constraint("DistanceX", 1, 2, 1, 1, 4.6),
    Sketcher.Constraint("DistanceX", 12, 2, 12, 1, 9.5),
    Sketcher.Constraint("DistanceY", 19, 2, 19, 1, 6.6),
    Sketcher.Constraint("DistanceY", -1, 1, 0, 1, 19.0),
    Sketcher.Constraint("DistanceX", 8, 3, 14, 3, 100.099999),
    Sketcher.Constraint("DistanceX", 0, 3, -1, 1, 53.239999),
])
pad4 = body.newObject("PartDesign::Pad", "Pad003")
pad4.Profile = sketch7
pad4.Length = 10
pad4.Reversed = True

# Sketch on XY plane
sketch8 = body.newObject("Sketcher::SketchObject", "Sketch007")
sketch8.AttachmentSupport = (doc.getObject("XY_Plane"), [""])
sketch8.MapMode = "FlatFace"
sketch8.AttachmentOffset = App.Placement(App.Vector(0, 0, 3.2), App.Rotation())
sketch8.addGeometry([
    Part.Circle(App.Vector(-53.2, 22.5, 0), App.Vector(0, 0, 1), 3.5),  # 0
    Part.Circle(App.Vector(-53.2, 22.5, 0), App.Vector(0, 0, 1), 1.7),  # 1
    Part.Circle(App.Vector(-53.2, -21.5, 0), App.Vector(0, 0, 1), 3.5),  # 2
    Part.Circle(App.Vector(-53.2, -21.5, 0), App.Vector(0, 0, 1), 1.7),  # 3
    Part.ArcOfCircle(Part.Circle(App.Vector(46.9, -21.5, 0), App.Vector(0, 0, 1), 3.5), math.radians(90), math.radians(270)),  # 4
    Part.LineSegment(App.Vector(46.9, -18, 0), App.Vector(51.9, -18, 0)),  # 5
    Part.ArcOfCircle(Part.Circle(App.Vector(51.9, -21.5, 0), App.Vector(0, 0, 1), 3.5), math.radians(-90), math.radians(90)),  # 6
    Part.LineSegment(App.Vector(51.9, -25, 0), App.Vector(46.9, -25, 0)),  # 7
    Part.Circle(App.Vector(46.9, -21.5, 0), App.Vector(0, 0, 1), 1.7),  # 8
    Part.Circle(App.Vector(51.9, -21.5, 0), App.Vector(0, 0, 1), 1.7),  # 9
    Part.ArcOfCircle(Part.Circle(App.Vector(46.9, 22.5, 0), App.Vector(0, 0, 1), 3.5), math.radians(54), math.radians(327)),  # 10
    Part.ArcOfCircle(Part.Circle(App.Vector(51.9, 23.4, 0), App.Vector(0, 0, 1), 3.5), math.radians(-126), math.radians(147)),  # 11
    Part.Circle(App.Vector(51.9, 23.4, 0), App.Vector(0, 0, 1), 1.7),  # 12
    Part.Circle(App.Vector(46.9, 22.5, 0), App.Vector(0, 0, 1), 1.7),  # 13
], False)
sketch8.addConstraint([
    Sketcher.Constraint("Tangent", 4, 1, 5, 1),
    Sketcher.Constraint("Tangent", 5, 2, 6, 2),
    Sketcher.Constraint("Tangent", 6, 1, 7, 1),
    Sketcher.Constraint("Tangent", 7, 2, 4, 2),
    Sketcher.Constraint("Coincident", 10, 1, 11, 2),
    Sketcher.Constraint("Coincident", 11, 1, 10, 2),
    Sketcher.Constraint("Horizontal", 5),
    Sketcher.Constraint("Horizontal", 7),
    Sketcher.Constraint("Coincident", 1, 3, 0, 3),
    Sketcher.Constraint("Coincident", 3, 3, 2, 3),
    Sketcher.Constraint("Coincident", 8, 3, 4, 3),
    Sketcher.Constraint("Coincident", 9, 3, 6, 3),
    Sketcher.Constraint("Coincident", 12, 3, 11, 3),
    Sketcher.Constraint("Coincident", 13, 3, 10, 3),
    Sketcher.Constraint("Equal", 0, 2),
    Sketcher.Constraint("Equal", 1, 3),
    Sketcher.Constraint("Equal", 2, 4),
    Sketcher.Constraint("Equal", 3, 8),
    Sketcher.Constraint("Equal", 8, 9),
    Sketcher.Constraint("Equal", 6, 10),
    Sketcher.Constraint("Equal", 10, 11),
    Sketcher.Constraint("Equal", 9, 12),
    Sketcher.Constraint("Equal", 12, 13),
    Sketcher.Constraint("Horizontal", 3, 3, 4, 3),
    Sketcher.Constraint("Horizontal", 1, 3, 10, 3),
    Sketcher.Constraint("Vertical", 1, 3, 2, 3),
    Sketcher.Constraint("Vertical", 8, 3, 10, 3),
    Sketcher.Constraint("Vertical", 9, 3, 11, 3),
    Sketcher.Constraint("Diameter", 0, 7.0),
    Sketcher.Constraint("Diameter", 1, 3.4),
    Sketcher.Constraint("DistanceX", 5, 1, 5, 2, 5.0),
    Sketcher.Constraint("DistanceY", 4, 1, -1, 1, 18.0),
    Sketcher.Constraint("DistanceY", 2, 3, 0, 3, 44.0),
    Sketcher.Constraint("DistanceY", -1, 1, 11, 3, 23.4),
    Sketcher.Constraint("DistanceX", 2, 3, 4, 3, 100.1),
    Sketcher.Constraint("DistanceX", 0, 3, -1, 1, 53.24),
])
pad5 = body.newObject("PartDesign::Pad", "Pad004")
pad5.Profile = sketch8
pad5.Length = 3.1
pad5.Reversed = True

doc.recompute()
